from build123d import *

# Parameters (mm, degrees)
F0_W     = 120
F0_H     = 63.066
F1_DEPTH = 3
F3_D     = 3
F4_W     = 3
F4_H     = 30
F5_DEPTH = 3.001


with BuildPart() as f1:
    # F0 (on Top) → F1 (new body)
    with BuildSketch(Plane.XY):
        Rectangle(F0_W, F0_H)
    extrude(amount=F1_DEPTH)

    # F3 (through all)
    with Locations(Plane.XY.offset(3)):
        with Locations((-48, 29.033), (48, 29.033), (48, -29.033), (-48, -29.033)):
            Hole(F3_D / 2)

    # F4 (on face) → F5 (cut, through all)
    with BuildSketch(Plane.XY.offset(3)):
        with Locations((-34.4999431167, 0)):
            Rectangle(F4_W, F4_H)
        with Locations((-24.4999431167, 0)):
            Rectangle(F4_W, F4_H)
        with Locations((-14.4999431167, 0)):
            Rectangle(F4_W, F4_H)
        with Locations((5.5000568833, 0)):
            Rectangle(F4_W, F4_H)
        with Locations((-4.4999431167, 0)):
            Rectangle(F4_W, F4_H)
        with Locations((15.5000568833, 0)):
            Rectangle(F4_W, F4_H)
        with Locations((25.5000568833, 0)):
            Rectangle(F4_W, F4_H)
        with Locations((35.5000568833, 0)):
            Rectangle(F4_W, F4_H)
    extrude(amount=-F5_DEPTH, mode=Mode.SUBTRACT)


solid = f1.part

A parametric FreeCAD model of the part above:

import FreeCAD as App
import Part
import Sketcher
from FreeCAD import Vector
Q = App.Units.Quantity

doc = App.newDocument("Part")
body = doc.addObject("PartDesign::Body", "Body")

sketch1 = body.newObject("Sketcher::SketchObject", "Sketch")
sketch1.AttachmentSupport = (doc.getObject("XY_Plane"), [""])
sketch1.MapMode = "FlatFace"
sketch1.addGeometry(Part.LineSegment(Vector(-60, 32, 0), Vector(-60, -32, 0)), False)
sketch1.addGeometry(Part.LineSegment(Vector(-60, -32, 0), Vector(60, -32, 0)), False)
sketch1.addGeometry(Part.LineSegment(Vector(60, -32, 0), Vector(60, 32, 0)), False)
sketch1.addGeometry(Part.LineSegment(Vector(60, 32, 0), Vector(-60, 32, 0)), False)
sketch1.addConstraint(Sketcher.Constraint("Coincident", 0, 2, 1, 1))
sketch1.addConstraint(Sketcher.Constraint("Coincident", 1, 2, 2, 1))
sketch1.addConstraint(Sketcher.Constraint("Coincident", 2, 2, 3, 1))
sketch1.addConstraint(Sketcher.Constraint("Coincident", 3, 2, 0, 1))
sketch1.addConstraint(Sketcher.Constraint("Vertical", 0))
sketch1.addConstraint(Sketcher.Constraint("Horizontal", 1))
sketch1.addConstraint(Sketcher.Constraint("Vertical", 2))
sketch1.addConstraint(Sketcher.Constraint("Horizontal", 3))
sketch1.addConstraint(Sketcher.Constraint("Symmetric", 0, 2, 2, 2, -1, 1))
sketch1.addConstraint(Sketcher.Constraint("DistanceX", 1, 1, 1, 2, Q("120 mm")))
sketch1.addConstraint(Sketcher.Constraint("DistanceY", 0, 2, 0, 1, Q("63.066 mm")))
pad1 = body.newObject("PartDesign::Pad", "Pad")
pad1.Profile = sketch1
pad1.Length = 3

sketch2 = body.newObject("Sketcher::SketchObject", "Sketch001")
sketch2.AttachmentSupport = (doc.getObject("XY_Plane"), [""])
sketch2.MapMode = "FlatFace"
sketch2.AttachmentOffset = App.Placement(Vector(0, 0, 3), App.Rotation())
sketch2.addGeometry(Part.Circle(Vector(-48, 29, 0), Vector(0, 0, 1), 1.5), False)
sketch2.addGeometry(Part.Circle(Vector(48, 29, 0), Vector(0, 0, 1), 1.5), False)
sketch2.addGeometry(Part.Circle(Vector(48, -29, 0), Vector(0, 0, 1), 1.5), False)
sketch2.addGeometry(Part.Circle(Vector(-48, -29, 0), Vector(0, 0, 1), 1.5), False)
sketch2.addConstraint(Sketcher.Constraint("Equal", 0, 1))
sketch2.addConstraint(Sketcher.Constraint("Equal", 1, 2))
sketch2.addConstraint(Sketcher.Constraint("Equal", 2, 3))
sketch2.addConstraint(Sketcher.Constraint("Symmetric", 0, 3, 2, 3, -1, 1))
sketch2.addConstraint(Sketcher.Constraint("Symmetric", 1, 3, 3, 3, -1, 1))
sketch2.addConstraint(Sketcher.Constraint("Symmetric", 0, 3, 1, 3, -2))
sketch2.addConstraint(Sketcher.Constraint("Diameter", 0, Q("3 mm")))
sketch2.addConstraint(Sketcher.Constraint("DistanceX", 0, 3, -1, 1, Q("48 mm")))
sketch2.addConstraint(Sketcher.Constraint("DistanceY", -1, 1, 0, 3, Q("29.033 mm")))
doc.recompute()
hole = body.newObject("PartDesign::Hole", "Hole")
hole.Profile = sketch2
hole.ThreadType = "None"
hole.Diameter = 3
hole.DepthType = "ThroughAll"

sketch3 = body.newObject("Sketcher::SketchObject", "Sketch002")
sketch3.AttachmentSupport = (doc.getObject("XY_Plane"), [""])
sketch3.MapMode = "FlatFace"
sketch3.AttachmentOffset = App.Placement(Vector(0, 0, 3), App.Rotation())
sketch3.addGeometry(Part.LineSegment(Vector(-36, 15, 0), Vector(-36, -15, 0)), False)
sketch3.addGeometry(Part.LineSegment(Vector(-36, -15, 0), Vector(-33, -15, 0)), False)
sketch3.addGeometry(Part.LineSegment(Vector(-33, -15, 0), Vector(-33, 15, 0)), False)
sketch3.addGeometry(Part.LineSegment(Vector(-33, 15, 0), Vector(-36, 15, 0)), False)
sketch3.addGeometry(Part.LineSegment(Vector(-26, 15, 0), Vector(-26, -15, 0)), False)
sketch3.addGeometry(Part.LineSegment(Vector(-26, -15, 0), Vector(-23, -15, 0)), False)
sketch3.addGeometry(Part.LineSegment(Vector(-23, -15, 0), Vector(-23, 15, 0)), False)
sketch3.addGeometry(Part.LineSegment(Vector(-23, 15, 0), Vector(-26, 15, 0)), False)
sketch3.addGeometry(Part.LineSegment(Vector(-16, 15, 0), Vector(-16, -15, 0)), False)
sketch3.addGeometry(Part.LineSegment(Vector(-16, -15, 0), Vector(-13, -15, 0)), False)
sketch3.addGeometry(Part.LineSegment(Vector(-13, -15, 0), Vector(-13, 15, 0)), False)
sketch3.addGeometry(Part.LineSegment(Vector(-13, 15, 0), Vector(-16, 15, 0)), False)
sketch3.addGeometry(Part.LineSegment(Vector(4, 15, 0), Vector(4, -15, 0)), False)
sketch3.addGeometry(Part.LineSegment(Vector(4, -15, 0), Vector(7, -15, 0)), False)
sketch3.addGeometry(Part.LineSegment(Vector(7, -15, 0), Vector(7, 15, 0)), False)
sketch3.addGeometry(Part.LineSegment(Vector(7, 15, 0), Vector(4, 15, 0)), False)
sketch3.addGeometry(Part.LineSegment(Vector(-6, 15, 0), Vector(-6, -15, 0)), False)
sketch3.addGeometry(Part.LineSegment(Vector(-6, -15, 0), Vector(-3, -15, 0)), False)
sketch3.addGeometry(Part.LineSegment(Vector(-3, -15, 0), Vector(-3, 15, 0)), False)
sketch3.addGeometry(Part.LineSegment(Vector(-3, 15, 0), Vector(-6, 15, 0)), False)
sketch3.addGeometry(Part.LineSegment(Vector(14, 15, 0), Vector(14, -15, 0)), False)
sketch3.addGeometry(Part.LineSegment(Vector(14, -15, 0), Vector(17, -15, 0)), False)
sketch3.addGeometry(Part.LineSegment(Vector(17, -15, 0), Vector(17, 15, 0)), False)
sketch3.addGeometry(Part.LineSegment(Vector(17, 15, 0), Vector(14, 15, 0)), False)
sketch3.addGeometry(Part.LineSegment(Vector(24, 15, 0), Vector(24, -15, 0)), False)
sketch3.addGeometry(Part.LineSegment(Vector(24, -15, 0), Vector(27, -15, 0)), False)
sketch3.addGeometry(Part.LineSegment(Vector(27, -15, 0), Vector(27, 15, 0)), False)
sketch3.addGeometry(Part.LineSegment(Vector(27, 15, 0), Vector(24, 15, 0)), False)
sketch3.addGeometry(Part.LineSegment(Vector(34, 15, 0), Vector(34, -15, 0)), False)
sketch3.addGeometry(Part.LineSegment(Vector(34, -15, 0), Vector(37, -15, 0)), False)
sketch3.addGeometry(Part.LineSegment(Vector(37, -15, 0), Vector(37, 15, 0)), False)
sketch3.addGeometry(Part.LineSegment(Vector(37, 15, 0), Vector(34, 15, 0)), False)
sketch3.addConstraint(Sketcher.Constraint("Coincident", 0, 2, 1, 1))
sketch3.addConstraint(Sketcher.Constraint("Coincident", 1, 2, 2, 1))
sketch3.addConstraint(Sketcher.Constraint("Coincident", 2, 2, 3, 1))
sketch3.addConstraint(Sketcher.Constraint("Coincident", 3, 2, 0, 1))
sketch3.addConstraint(Sketcher.Constraint("Coincident", 4, 2, 5, 1))
sketch3.addConstraint(Sketcher.Constraint("Coincident", 5, 2, 6, 1))
sketch3.addConstraint(Sketcher.Constraint("Coincident", 6, 2, 7, 1))
sketch3.addConstraint(Sketcher.Constraint("Coincident", 7, 2, 4, 1))
sketch3.addConstraint(Sketcher.Constraint("Coincident", 8, 2, 9, 1))
sketch3.addConstraint(Sketcher.Constraint("Coincident", 9, 2, 10, 1))
sketch3.addConstraint(Sketcher.Constraint("Coincident", 10, 2, 11, 1))
sketch3.addConstraint(Sketcher.Constraint("Coincident", 11, 2, 8, 1))
sketch3.addConstraint(Sketcher.Constraint("Coincident", 12, 2, 13, 1))
sketch3.addConstraint(Sketcher.Constraint("Coincident", 13, 2, 14, 1))
sketch3.addConstraint(Sketcher.Constraint("Coincident", 14, 2, 15, 1))
sketch3.addConstraint(Sketcher.Constraint("Coincident", 15, 2, 12, 1))
sketch3.addConstraint(Sketcher.Constraint("Coincident", 16, 2, 17, 1))
sketch3.addConstraint(Sketcher.Constraint("Coincident", 17, 2, 18, 1))
sketch3.addConstraint(Sketcher.Constraint("Coincident", 18, 2, 19, 1))
sketch3.addConstraint(Sketcher.Constraint("Coincident", 19, 2, 16, 1))
sketch3.addConstraint(Sketcher.Constraint("Coincident", 20, 2, 21, 1))
sketch3.addConstraint(Sketcher.Constraint("Coincident", 21, 2, 22, 1))
sketch3.addConstraint(Sketcher.Constraint("Coincident", 22, 2, 23, 1))
sketch3.addConstraint(Sketcher.Constraint("Coincident", 23, 2, 20, 1))
sketch3.addConstraint(Sketcher.Constraint("Coincident", 24, 2, 25, 1))
sketch3.addConstraint(Sketcher.Constraint("Coincident", 25, 2, 26, 1))
sketch3.addConstraint(Sketcher.Constraint("Coincident", 26, 2, 27, 1))
sketch3.addConstraint(Sketcher.Constraint("Coincident", 27, 2, 24, 1))
sketch3.addConstraint(Sketcher.Constraint("Coincident", 28, 2, 29, 1))
sketch3.addConstraint(Sketcher.Constraint("Coincident", 29, 2, 30, 1))
sketch3.addConstraint(Sketcher.Constraint("Coincident", 30, 2, 31, 1))
sketch3.addConstraint(Sketcher.Constraint("Coincident", 31, 2, 28, 1))
sketch3.addConstraint(Sketcher.Constraint("Vertical", 0))
sketch3.addConstraint(Sketcher.Constraint("Horizontal", 1))
sketch3.addConstraint(Sketcher.Constraint("Vertical", 2))
sketch3.addConstraint(Sketcher.Constraint("Horizontal", 3))
sketch3.addConstraint(Sketcher.Constraint("Vertical", 4))
sketch3.addConstraint(Sketcher.Constraint("Horizontal", 5))
sketch3.addConstraint(Sketcher.Constraint("Vertical", 6))
sketch3.addConstraint(Sketcher.Constraint("Horizontal", 7))
sketch3.addConstraint(Sketcher.Constraint("Vertical", 8))
sketch3.addConstraint(Sketcher.Constraint("Horizontal", 9))
sketch3.addConstraint(Sketcher.Constraint("Vertical", 10))
sketch3.addConstraint(Sketcher.Constraint("Horizontal", 11))
sketch3.addConstraint(Sketcher.Constraint("Vertical", 12))
sketch3.addConstraint(Sketcher.Constraint("Horizontal", 13))
sketch3.addConstraint(Sketcher.Constraint("Vertical", 14))
sketch3.addConstraint(Sketcher.Constraint("Horizontal", 15))
sketch3.addConstraint(Sketcher.Constraint("Vertical", 16))
sketch3.addConstraint(Sketcher.Constraint("Horizontal", 17))
sketch3.addConstraint(Sketcher.Constraint("Vertical", 18))
sketch3.addConstraint(Sketcher.Constraint("Horizontal", 19))
sketch3.addConstraint(Sketcher.Constraint("Vertical", 20))
sketch3.addConstraint(Sketcher.Constraint("Horizontal", 21))
sketch3.addConstraint(Sketcher.Constraint("Vertical", 22))
sketch3.addConstraint(Sketcher.Constraint("Horizontal", 23))
sketch3.addConstraint(Sketcher.Constraint("Vertical", 24))
sketch3.addConstraint(Sketcher.Constraint("Horizontal", 25))
sketch3.addConstraint(Sketcher.Constraint("Vertical", 26))
sketch3.addConstraint(Sketcher.Constraint("Horizontal", 27))
sketch3.addConstraint(Sketcher.Constraint("Vertical", 28))
sketch3.addConstraint(Sketcher.Constraint("Horizontal", 29))
sketch3.addConstraint(Sketcher.Constraint("Vertical", 30))
sketch3.addConstraint(Sketcher.Constraint("Horizontal", 31))
sketch3.addConstraint(Sketcher.Constraint("Horizontal", 1, 2, 4, 2))
sketch3.addConstraint(Sketcher.Constraint("Horizontal", 3, 2, 6, 2))
sketch3.addConstraint(Sketcher.Constraint("Horizontal", 5, 2, 8, 2))
sketch3.addConstraint(Sketcher.Constraint("Horizontal", 7, 2, 10, 2))
sketch3.addConstraint(Sketcher.Constraint("Horizontal", 9, 2, 12, 2))
sketch3.addConstraint(Sketcher.Constraint("Horizontal", 11, 2, 14, 2))
sketch3.addConstraint(Sketcher.Constraint("Horizontal", 13, 2, 16, 2))
sketch3.addConstraint(Sketcher.Constraint("Horizontal", 15, 2, 18, 2))
sketch3.addConstraint(Sketcher.Constraint("Horizontal", 17, 2, 20, 2))
sketch3.addConstraint(Sketcher.Constraint("Horizontal", 19, 2, 22, 2))
sketch3.addConstraint(Sketcher.Constraint("Horizontal", 21, 2, 24, 2))
sketch3.addConstraint(Sketcher.Constraint("Horizontal", 23, 2, 26, 2))
sketch3.addConstraint(Sketcher.Constraint("Horizontal", 25, 2, 28, 2))
sketch3.addConstraint(Sketcher.Constraint("Horizontal", 27, 2, 30, 2))
sketch3.addConstraint(Sketcher.Constraint("Equal", 3, 5))
sketch3.addConstraint(Sketcher.Constraint("Equal", 7, 9))
sketch3.addConstraint(Sketcher.Constraint("Equal", 11, 13))
sketch3.addConstraint(Sketcher.Constraint("Equal", 15, 17))
sketch3.addConstraint(Sketcher.Constraint("Equal", 19, 21))
sketch3.addConstraint(Sketcher.Constraint("Equal", 23, 25))
sketch3.addConstraint(Sketcher.Constraint("Equal", 27, 29))
sketch3.addConstraint(Sketcher.Constraint("DistanceX", 1, 1, 1, 2, Q("3 mm")))
sketch3.addConstraint(Sketcher.Constraint("DistanceY", 0, 2, 0, 1, Q("30 mm")))
sketch3.addConstraint(Sketcher.Constraint("DistanceY", 0, 2, -1, 1, Q("15 mm")))
sketch3.addConstraint(Sketcher.Constraint("DistanceX", 1, 2, 4, 2, Q("7 mm")))
sketch3.addConstraint(Sketcher.Constraint("DistanceX", 5, 2, 8, 2, Q("7 mm")))
sketch3.addConstraint(Sketcher.Constraint("DistanceX", 9, 2, 12, 2, Q("17 mm")))
sketch3.addConstraint(Sketcher.Constraint("DistanceX", 9, 2, 16, 2, Q("7 mm")))
sketch3.addConstraint(Sketcher.Constraint("DistanceX", 13, 2, 20, 2, Q("7 mm")))
sketch3.addConstraint(Sketcher.Constraint("DistanceX", 21, 2, 24, 2, Q("7 mm")))
sketch3.addConstraint(Sketcher.Constraint("DistanceX", 25, 2, 28, 2, Q("7 mm")))
sketch3.addConstraint(Sketcher.Constraint("DistanceX", 0, 2, -1, 1, Q("35.999943 mm")))
pocket1 = body.newObject("PartDesign::Pocket", "Pocket")
pocket1.Profile = sketch3
pocket1.Type = "ThroughAll"

doc.recompute()
